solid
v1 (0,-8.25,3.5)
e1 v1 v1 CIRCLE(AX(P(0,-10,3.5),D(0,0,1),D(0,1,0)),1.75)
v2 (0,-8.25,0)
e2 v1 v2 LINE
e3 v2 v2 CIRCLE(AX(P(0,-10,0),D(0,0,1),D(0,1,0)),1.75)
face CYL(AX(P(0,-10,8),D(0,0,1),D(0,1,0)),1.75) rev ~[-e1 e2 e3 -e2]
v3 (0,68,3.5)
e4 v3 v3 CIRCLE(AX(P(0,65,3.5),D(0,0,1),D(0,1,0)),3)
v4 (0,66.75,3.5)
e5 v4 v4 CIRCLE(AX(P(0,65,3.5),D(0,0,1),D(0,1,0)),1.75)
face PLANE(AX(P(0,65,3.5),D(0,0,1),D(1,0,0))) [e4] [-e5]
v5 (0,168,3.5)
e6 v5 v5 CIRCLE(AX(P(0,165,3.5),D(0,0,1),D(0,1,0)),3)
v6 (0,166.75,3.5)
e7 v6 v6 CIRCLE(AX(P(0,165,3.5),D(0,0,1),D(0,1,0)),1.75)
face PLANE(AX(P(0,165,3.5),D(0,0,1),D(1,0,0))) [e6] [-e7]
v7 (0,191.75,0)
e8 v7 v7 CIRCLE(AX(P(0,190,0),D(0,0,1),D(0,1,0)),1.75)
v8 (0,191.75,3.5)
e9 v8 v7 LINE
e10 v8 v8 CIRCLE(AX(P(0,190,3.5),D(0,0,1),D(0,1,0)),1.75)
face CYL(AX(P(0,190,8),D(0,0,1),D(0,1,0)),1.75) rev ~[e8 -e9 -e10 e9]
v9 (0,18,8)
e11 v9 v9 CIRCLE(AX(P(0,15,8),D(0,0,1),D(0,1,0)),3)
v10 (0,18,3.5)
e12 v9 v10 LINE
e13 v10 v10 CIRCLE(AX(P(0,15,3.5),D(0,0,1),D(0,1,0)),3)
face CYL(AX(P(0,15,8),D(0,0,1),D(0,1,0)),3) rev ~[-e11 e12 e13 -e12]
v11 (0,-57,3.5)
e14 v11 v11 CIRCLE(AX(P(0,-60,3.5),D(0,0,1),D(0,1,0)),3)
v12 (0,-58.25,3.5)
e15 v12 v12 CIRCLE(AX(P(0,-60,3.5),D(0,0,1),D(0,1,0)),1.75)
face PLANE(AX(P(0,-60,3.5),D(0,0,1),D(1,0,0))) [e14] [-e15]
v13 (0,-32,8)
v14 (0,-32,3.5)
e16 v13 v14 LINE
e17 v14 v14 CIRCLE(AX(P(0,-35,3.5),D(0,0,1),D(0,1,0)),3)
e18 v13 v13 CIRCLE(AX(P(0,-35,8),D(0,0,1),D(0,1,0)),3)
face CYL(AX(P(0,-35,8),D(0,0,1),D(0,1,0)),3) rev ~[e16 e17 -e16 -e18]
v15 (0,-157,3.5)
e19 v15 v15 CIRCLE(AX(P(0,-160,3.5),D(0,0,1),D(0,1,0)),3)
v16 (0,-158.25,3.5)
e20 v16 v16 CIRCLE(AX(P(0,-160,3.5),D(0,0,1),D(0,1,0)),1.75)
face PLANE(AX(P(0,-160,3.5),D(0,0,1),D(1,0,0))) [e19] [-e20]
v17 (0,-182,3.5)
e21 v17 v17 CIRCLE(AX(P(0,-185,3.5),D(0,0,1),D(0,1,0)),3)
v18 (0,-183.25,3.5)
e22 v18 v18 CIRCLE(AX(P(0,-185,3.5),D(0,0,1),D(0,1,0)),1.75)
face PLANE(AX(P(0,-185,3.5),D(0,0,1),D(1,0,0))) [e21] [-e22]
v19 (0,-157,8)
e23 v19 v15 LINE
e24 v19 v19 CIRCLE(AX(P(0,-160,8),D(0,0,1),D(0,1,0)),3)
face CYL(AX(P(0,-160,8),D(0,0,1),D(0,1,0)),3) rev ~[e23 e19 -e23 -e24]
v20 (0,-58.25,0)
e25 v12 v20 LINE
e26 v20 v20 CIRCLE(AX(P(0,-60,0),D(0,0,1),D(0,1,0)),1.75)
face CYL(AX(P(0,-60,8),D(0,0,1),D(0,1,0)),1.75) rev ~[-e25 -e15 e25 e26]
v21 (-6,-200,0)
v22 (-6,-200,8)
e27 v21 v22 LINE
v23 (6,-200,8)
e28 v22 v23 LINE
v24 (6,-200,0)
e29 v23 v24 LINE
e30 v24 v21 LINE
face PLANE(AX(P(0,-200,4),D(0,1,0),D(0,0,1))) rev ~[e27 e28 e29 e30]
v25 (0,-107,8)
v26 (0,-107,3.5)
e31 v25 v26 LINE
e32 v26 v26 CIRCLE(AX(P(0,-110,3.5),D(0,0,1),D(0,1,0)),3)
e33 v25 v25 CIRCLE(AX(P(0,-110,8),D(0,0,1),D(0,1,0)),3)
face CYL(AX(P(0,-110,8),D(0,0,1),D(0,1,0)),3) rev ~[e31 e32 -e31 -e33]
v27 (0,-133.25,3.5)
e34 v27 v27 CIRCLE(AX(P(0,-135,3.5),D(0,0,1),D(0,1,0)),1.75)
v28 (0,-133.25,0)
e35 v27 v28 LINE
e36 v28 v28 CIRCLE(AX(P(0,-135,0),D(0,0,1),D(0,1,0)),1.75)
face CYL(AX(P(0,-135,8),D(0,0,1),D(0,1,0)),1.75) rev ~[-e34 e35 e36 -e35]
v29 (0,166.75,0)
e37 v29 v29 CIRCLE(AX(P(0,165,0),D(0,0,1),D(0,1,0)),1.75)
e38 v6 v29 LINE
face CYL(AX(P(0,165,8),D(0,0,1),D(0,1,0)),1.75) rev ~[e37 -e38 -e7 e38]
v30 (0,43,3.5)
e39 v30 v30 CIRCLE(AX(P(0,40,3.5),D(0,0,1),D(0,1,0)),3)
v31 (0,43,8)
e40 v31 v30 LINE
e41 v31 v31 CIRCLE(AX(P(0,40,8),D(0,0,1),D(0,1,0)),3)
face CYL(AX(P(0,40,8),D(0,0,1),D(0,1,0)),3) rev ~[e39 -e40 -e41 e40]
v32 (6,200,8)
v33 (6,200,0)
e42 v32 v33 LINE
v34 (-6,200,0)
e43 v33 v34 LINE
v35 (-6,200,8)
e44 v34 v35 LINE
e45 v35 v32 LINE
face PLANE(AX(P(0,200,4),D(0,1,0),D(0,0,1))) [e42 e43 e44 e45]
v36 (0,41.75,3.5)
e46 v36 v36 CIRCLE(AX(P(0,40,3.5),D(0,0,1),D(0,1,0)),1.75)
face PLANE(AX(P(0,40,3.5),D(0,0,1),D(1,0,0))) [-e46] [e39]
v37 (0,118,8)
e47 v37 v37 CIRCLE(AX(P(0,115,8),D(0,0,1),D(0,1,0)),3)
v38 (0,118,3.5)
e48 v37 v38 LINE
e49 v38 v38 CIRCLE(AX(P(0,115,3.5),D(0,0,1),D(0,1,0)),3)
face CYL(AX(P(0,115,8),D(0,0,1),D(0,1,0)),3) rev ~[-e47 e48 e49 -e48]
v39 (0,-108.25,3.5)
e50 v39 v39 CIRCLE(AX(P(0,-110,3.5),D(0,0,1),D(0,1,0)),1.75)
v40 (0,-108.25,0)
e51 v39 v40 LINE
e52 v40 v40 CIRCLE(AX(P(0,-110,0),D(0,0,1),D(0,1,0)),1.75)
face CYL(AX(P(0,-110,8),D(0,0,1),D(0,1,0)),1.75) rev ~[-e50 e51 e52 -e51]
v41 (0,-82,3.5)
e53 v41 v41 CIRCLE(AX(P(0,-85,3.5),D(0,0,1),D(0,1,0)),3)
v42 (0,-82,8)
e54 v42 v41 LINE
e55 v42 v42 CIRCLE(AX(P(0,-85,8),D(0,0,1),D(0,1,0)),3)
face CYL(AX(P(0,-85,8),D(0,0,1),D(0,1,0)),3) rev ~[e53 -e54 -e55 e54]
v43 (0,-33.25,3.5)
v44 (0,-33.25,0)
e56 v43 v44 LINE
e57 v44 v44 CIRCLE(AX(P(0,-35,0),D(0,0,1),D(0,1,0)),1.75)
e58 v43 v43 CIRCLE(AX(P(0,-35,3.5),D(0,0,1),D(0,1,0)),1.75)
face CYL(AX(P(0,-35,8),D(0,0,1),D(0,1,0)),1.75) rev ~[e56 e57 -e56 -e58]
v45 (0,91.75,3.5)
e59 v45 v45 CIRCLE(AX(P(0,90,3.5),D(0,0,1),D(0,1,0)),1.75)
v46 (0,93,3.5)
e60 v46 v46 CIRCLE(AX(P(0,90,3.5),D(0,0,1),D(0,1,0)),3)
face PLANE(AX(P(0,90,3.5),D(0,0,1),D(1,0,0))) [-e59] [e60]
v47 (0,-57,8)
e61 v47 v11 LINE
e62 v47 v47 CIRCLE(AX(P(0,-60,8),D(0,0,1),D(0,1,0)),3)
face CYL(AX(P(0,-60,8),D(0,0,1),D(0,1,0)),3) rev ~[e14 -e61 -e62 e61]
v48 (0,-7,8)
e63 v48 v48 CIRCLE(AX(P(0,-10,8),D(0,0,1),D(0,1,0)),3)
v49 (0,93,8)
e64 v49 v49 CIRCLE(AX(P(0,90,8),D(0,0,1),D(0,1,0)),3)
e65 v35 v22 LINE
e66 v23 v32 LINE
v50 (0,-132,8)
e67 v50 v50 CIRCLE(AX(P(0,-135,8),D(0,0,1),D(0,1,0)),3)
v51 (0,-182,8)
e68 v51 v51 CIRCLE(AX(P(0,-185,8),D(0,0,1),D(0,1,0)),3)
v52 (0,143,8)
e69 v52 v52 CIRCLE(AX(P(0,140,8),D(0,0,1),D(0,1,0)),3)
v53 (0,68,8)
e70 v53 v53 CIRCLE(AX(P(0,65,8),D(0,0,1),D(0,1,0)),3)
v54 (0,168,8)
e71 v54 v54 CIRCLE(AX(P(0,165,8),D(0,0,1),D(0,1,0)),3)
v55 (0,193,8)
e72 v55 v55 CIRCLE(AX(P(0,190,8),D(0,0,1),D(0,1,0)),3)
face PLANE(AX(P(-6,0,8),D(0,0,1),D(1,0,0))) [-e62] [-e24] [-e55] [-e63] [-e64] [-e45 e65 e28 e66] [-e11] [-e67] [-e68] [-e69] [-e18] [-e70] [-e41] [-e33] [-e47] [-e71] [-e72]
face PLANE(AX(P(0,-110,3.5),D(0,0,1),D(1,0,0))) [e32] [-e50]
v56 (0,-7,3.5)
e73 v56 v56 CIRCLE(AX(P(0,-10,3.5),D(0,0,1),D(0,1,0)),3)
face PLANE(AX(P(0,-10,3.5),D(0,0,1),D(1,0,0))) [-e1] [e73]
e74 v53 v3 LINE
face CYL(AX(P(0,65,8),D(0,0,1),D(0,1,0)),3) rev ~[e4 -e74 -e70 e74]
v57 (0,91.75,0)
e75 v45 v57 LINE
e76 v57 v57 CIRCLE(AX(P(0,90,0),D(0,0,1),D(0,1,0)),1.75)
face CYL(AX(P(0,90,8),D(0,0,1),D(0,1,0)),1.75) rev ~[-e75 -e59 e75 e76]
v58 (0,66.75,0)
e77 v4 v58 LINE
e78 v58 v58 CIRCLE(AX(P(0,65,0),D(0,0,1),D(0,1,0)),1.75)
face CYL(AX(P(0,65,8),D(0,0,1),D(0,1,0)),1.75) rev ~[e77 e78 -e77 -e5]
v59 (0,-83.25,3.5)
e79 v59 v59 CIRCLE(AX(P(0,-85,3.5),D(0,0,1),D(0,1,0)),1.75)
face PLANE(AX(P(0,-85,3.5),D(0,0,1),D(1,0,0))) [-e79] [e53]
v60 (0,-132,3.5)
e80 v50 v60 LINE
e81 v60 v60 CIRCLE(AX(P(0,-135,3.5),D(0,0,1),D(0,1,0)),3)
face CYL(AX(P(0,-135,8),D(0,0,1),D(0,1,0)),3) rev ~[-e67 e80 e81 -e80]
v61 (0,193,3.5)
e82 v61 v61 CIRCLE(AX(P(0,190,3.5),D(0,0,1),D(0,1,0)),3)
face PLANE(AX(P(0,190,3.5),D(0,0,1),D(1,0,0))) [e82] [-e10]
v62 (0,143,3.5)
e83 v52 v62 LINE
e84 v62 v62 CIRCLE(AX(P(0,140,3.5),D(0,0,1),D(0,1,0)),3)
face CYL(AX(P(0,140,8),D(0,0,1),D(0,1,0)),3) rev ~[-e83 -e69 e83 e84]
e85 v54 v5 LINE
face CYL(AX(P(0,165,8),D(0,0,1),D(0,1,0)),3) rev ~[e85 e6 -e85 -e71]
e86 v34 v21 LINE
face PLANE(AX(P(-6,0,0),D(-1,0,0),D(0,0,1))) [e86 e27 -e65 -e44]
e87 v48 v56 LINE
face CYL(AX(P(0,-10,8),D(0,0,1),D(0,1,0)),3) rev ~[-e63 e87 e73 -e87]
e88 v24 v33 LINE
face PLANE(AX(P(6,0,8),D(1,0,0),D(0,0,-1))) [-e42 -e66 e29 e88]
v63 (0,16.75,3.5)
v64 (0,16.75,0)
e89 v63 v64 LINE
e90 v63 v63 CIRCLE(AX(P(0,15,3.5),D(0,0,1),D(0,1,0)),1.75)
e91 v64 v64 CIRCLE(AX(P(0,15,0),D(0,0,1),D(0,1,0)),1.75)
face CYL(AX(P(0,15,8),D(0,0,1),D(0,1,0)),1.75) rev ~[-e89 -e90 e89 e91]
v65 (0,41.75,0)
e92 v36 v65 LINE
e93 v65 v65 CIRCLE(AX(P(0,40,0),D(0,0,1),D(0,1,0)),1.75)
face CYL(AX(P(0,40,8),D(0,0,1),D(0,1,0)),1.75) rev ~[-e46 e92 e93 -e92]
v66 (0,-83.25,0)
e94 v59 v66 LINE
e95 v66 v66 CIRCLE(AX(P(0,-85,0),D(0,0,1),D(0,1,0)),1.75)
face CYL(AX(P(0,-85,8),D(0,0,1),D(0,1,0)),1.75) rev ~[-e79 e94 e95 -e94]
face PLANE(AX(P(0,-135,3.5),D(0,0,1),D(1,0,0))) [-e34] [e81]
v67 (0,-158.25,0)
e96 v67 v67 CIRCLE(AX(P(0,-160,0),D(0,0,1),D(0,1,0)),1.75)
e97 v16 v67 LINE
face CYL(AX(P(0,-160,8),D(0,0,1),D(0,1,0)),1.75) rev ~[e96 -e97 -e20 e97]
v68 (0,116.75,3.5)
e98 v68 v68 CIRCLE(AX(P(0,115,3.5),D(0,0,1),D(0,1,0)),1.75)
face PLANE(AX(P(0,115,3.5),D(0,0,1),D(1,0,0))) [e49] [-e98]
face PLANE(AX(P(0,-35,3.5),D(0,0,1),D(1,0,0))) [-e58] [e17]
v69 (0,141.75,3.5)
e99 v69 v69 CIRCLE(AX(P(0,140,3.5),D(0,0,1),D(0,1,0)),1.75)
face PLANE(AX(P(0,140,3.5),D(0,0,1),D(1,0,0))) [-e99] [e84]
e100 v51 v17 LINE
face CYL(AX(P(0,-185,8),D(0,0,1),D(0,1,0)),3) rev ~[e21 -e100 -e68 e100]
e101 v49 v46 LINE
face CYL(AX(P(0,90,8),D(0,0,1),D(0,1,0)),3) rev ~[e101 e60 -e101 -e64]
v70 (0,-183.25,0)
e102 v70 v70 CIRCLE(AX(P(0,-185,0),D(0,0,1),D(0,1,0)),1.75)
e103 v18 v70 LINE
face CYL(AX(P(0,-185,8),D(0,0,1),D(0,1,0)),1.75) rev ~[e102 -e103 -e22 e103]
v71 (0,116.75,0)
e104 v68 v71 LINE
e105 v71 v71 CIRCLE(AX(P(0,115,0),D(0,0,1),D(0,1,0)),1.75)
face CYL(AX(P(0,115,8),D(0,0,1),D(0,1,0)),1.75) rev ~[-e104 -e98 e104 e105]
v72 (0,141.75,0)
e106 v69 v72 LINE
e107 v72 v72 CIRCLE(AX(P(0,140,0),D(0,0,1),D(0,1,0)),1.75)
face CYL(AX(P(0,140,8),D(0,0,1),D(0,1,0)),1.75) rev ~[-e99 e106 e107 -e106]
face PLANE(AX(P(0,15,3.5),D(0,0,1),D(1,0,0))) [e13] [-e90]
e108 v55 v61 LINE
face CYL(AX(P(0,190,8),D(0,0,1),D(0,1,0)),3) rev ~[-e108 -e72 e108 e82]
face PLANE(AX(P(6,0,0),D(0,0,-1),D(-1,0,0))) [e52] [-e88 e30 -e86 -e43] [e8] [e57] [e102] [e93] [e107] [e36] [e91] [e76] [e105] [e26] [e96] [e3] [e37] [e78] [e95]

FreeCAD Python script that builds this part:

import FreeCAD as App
import Part
import Sketcher
from FreeCAD import Vector


def add_polygon(sketch, points):
    """Adds a closed chain of lines whose ends are joined by coincident constraints."""
    first, n = sketch.GeometryCount, len(points)
    for a, b in zip(points, points[1:] + points[:1]):
        sketch.addGeometry(Part.LineSegment(App.Vector(*a, 0), App.Vector(*b, 0)), False)
    for i in range(n):
        sketch.addConstraint(Sketcher.Constraint("Coincident", first + i, 2, first + (i + 1) % n, 1))

doc = App.newDocument("Part")
body = doc.addObject("PartDesign::Body", "Body")

# Sketch on XZ plane
sketch1 = doc.addObject("Sketcher::SketchObject", "Sketch")
body.addObject(sketch1)
sketch1.AttachmentSupport = (doc.XZ_Plane, [""])
sketch1.MapMode = "FlatFace"
add_polygon(sketch1, [(6, 8), (-6, 8), (-6, 0), (6, 0)])  # lines 0-3
sketch1.addConstraint(Sketcher.Constraint("Horizontal", 0))
sketch1.addConstraint(Sketcher.Constraint("Vertical", 1))
sketch1.addConstraint(Sketcher.Constraint("Horizontal", 2))
sketch1.addConstraint(Sketcher.Constraint("Vertical", 3))
sketch1.addConstraint(Sketcher.Constraint("Symmetric", 1, 2, 2, 2, -1, 1))
sketch1.addConstraint(Sketcher.Constraint("DistanceX", 0, 2, -1, 1, 6.0))
sketch1.addConstraint(Sketcher.Constraint("DistanceY", 1, 2, 1, 1, 8.0))
pad1 = doc.addObject("PartDesign::Pad", "Pad")
body.addObject(pad1)
pad1.Profile = sketch1
pad1.Length = 400
pad1.Midplane = True

# Sketch on XY plane
sketch2 = doc.addObject("Sketcher::SketchObject", "Sketch001")
body.addObject(sketch2)
sketch2.AttachmentSupport = (doc.XY_Plane, [""])
sketch2.MapMode = "FlatFace"
sketch2.AttachmentOffset = App.Placement(Vector(0, 0, 8), App.Rotation())
sketch2.addGeometry(Part.Circle(Vector(0, 190, 0), Vector(0, 0, 1), 1.8), False)
sketch2.addConstraint(Sketcher.Constraint("PointOnObject", 0, 3, -2))
sketch2.addConstraint(Sketcher.Constraint("Diameter", 0, 3.5))
sketch2.addConstraint(Sketcher.Constraint("DistanceY", -1, 1, 0, 3, 190.0))
pocket1 = doc.addObject("PartDesign::Pocket", "Pocket")
body.addObject(pocket1)
pocket1.Profile = sketch2
pocket1.Type = "ThroughAll"

# Sketch on XY plane
sketch3 = doc.addObject("Sketcher::SketchObject", "Sketch002")
body.addObject(sketch3)
sketch3.AttachmentSupport = (doc.XY_Plane, [""])
sketch3.MapMode = "FlatFace"
sketch3.AttachmentOffset = App.Placement(Vector(0, 0, 8), App.Rotation())
sketch3.addGeometry(Part.Circle(Vector(0, 190, 0), Vector(0, 0, 1), 3), False)
sketch3.addConstraint(Sketcher.Constraint("PointOnObject", 0, 3, -2))
sketch3.addConstraint(Sketcher.Constraint("Diameter", 0, 6.0))
sketch3.addConstraint(Sketcher.Constraint("DistanceY", -1, 1, 0, 3, 190.0))
pocket2 = doc.addObject("PartDesign::Pocket", "Pocket001")
body.addObject(pocket2)
pocket2.Profile = sketch3
pocket2.Length = 4.5
doc.recompute()

linearpattern = doc.addObject("PartDesign::LinearPattern", "LinearPattern")
body.addObject(linearpattern)
linearpattern.Originals = [pocket1, pocket2]
linearpattern.Direction = (doc.Y_Axis, [""])
linearpattern.Mode = "offset"
linearpattern.Offset = 25
linearpattern.Occurrences = 16
linearpattern.Reversed = True
body.Tip = linearpattern

doc.recompute()
